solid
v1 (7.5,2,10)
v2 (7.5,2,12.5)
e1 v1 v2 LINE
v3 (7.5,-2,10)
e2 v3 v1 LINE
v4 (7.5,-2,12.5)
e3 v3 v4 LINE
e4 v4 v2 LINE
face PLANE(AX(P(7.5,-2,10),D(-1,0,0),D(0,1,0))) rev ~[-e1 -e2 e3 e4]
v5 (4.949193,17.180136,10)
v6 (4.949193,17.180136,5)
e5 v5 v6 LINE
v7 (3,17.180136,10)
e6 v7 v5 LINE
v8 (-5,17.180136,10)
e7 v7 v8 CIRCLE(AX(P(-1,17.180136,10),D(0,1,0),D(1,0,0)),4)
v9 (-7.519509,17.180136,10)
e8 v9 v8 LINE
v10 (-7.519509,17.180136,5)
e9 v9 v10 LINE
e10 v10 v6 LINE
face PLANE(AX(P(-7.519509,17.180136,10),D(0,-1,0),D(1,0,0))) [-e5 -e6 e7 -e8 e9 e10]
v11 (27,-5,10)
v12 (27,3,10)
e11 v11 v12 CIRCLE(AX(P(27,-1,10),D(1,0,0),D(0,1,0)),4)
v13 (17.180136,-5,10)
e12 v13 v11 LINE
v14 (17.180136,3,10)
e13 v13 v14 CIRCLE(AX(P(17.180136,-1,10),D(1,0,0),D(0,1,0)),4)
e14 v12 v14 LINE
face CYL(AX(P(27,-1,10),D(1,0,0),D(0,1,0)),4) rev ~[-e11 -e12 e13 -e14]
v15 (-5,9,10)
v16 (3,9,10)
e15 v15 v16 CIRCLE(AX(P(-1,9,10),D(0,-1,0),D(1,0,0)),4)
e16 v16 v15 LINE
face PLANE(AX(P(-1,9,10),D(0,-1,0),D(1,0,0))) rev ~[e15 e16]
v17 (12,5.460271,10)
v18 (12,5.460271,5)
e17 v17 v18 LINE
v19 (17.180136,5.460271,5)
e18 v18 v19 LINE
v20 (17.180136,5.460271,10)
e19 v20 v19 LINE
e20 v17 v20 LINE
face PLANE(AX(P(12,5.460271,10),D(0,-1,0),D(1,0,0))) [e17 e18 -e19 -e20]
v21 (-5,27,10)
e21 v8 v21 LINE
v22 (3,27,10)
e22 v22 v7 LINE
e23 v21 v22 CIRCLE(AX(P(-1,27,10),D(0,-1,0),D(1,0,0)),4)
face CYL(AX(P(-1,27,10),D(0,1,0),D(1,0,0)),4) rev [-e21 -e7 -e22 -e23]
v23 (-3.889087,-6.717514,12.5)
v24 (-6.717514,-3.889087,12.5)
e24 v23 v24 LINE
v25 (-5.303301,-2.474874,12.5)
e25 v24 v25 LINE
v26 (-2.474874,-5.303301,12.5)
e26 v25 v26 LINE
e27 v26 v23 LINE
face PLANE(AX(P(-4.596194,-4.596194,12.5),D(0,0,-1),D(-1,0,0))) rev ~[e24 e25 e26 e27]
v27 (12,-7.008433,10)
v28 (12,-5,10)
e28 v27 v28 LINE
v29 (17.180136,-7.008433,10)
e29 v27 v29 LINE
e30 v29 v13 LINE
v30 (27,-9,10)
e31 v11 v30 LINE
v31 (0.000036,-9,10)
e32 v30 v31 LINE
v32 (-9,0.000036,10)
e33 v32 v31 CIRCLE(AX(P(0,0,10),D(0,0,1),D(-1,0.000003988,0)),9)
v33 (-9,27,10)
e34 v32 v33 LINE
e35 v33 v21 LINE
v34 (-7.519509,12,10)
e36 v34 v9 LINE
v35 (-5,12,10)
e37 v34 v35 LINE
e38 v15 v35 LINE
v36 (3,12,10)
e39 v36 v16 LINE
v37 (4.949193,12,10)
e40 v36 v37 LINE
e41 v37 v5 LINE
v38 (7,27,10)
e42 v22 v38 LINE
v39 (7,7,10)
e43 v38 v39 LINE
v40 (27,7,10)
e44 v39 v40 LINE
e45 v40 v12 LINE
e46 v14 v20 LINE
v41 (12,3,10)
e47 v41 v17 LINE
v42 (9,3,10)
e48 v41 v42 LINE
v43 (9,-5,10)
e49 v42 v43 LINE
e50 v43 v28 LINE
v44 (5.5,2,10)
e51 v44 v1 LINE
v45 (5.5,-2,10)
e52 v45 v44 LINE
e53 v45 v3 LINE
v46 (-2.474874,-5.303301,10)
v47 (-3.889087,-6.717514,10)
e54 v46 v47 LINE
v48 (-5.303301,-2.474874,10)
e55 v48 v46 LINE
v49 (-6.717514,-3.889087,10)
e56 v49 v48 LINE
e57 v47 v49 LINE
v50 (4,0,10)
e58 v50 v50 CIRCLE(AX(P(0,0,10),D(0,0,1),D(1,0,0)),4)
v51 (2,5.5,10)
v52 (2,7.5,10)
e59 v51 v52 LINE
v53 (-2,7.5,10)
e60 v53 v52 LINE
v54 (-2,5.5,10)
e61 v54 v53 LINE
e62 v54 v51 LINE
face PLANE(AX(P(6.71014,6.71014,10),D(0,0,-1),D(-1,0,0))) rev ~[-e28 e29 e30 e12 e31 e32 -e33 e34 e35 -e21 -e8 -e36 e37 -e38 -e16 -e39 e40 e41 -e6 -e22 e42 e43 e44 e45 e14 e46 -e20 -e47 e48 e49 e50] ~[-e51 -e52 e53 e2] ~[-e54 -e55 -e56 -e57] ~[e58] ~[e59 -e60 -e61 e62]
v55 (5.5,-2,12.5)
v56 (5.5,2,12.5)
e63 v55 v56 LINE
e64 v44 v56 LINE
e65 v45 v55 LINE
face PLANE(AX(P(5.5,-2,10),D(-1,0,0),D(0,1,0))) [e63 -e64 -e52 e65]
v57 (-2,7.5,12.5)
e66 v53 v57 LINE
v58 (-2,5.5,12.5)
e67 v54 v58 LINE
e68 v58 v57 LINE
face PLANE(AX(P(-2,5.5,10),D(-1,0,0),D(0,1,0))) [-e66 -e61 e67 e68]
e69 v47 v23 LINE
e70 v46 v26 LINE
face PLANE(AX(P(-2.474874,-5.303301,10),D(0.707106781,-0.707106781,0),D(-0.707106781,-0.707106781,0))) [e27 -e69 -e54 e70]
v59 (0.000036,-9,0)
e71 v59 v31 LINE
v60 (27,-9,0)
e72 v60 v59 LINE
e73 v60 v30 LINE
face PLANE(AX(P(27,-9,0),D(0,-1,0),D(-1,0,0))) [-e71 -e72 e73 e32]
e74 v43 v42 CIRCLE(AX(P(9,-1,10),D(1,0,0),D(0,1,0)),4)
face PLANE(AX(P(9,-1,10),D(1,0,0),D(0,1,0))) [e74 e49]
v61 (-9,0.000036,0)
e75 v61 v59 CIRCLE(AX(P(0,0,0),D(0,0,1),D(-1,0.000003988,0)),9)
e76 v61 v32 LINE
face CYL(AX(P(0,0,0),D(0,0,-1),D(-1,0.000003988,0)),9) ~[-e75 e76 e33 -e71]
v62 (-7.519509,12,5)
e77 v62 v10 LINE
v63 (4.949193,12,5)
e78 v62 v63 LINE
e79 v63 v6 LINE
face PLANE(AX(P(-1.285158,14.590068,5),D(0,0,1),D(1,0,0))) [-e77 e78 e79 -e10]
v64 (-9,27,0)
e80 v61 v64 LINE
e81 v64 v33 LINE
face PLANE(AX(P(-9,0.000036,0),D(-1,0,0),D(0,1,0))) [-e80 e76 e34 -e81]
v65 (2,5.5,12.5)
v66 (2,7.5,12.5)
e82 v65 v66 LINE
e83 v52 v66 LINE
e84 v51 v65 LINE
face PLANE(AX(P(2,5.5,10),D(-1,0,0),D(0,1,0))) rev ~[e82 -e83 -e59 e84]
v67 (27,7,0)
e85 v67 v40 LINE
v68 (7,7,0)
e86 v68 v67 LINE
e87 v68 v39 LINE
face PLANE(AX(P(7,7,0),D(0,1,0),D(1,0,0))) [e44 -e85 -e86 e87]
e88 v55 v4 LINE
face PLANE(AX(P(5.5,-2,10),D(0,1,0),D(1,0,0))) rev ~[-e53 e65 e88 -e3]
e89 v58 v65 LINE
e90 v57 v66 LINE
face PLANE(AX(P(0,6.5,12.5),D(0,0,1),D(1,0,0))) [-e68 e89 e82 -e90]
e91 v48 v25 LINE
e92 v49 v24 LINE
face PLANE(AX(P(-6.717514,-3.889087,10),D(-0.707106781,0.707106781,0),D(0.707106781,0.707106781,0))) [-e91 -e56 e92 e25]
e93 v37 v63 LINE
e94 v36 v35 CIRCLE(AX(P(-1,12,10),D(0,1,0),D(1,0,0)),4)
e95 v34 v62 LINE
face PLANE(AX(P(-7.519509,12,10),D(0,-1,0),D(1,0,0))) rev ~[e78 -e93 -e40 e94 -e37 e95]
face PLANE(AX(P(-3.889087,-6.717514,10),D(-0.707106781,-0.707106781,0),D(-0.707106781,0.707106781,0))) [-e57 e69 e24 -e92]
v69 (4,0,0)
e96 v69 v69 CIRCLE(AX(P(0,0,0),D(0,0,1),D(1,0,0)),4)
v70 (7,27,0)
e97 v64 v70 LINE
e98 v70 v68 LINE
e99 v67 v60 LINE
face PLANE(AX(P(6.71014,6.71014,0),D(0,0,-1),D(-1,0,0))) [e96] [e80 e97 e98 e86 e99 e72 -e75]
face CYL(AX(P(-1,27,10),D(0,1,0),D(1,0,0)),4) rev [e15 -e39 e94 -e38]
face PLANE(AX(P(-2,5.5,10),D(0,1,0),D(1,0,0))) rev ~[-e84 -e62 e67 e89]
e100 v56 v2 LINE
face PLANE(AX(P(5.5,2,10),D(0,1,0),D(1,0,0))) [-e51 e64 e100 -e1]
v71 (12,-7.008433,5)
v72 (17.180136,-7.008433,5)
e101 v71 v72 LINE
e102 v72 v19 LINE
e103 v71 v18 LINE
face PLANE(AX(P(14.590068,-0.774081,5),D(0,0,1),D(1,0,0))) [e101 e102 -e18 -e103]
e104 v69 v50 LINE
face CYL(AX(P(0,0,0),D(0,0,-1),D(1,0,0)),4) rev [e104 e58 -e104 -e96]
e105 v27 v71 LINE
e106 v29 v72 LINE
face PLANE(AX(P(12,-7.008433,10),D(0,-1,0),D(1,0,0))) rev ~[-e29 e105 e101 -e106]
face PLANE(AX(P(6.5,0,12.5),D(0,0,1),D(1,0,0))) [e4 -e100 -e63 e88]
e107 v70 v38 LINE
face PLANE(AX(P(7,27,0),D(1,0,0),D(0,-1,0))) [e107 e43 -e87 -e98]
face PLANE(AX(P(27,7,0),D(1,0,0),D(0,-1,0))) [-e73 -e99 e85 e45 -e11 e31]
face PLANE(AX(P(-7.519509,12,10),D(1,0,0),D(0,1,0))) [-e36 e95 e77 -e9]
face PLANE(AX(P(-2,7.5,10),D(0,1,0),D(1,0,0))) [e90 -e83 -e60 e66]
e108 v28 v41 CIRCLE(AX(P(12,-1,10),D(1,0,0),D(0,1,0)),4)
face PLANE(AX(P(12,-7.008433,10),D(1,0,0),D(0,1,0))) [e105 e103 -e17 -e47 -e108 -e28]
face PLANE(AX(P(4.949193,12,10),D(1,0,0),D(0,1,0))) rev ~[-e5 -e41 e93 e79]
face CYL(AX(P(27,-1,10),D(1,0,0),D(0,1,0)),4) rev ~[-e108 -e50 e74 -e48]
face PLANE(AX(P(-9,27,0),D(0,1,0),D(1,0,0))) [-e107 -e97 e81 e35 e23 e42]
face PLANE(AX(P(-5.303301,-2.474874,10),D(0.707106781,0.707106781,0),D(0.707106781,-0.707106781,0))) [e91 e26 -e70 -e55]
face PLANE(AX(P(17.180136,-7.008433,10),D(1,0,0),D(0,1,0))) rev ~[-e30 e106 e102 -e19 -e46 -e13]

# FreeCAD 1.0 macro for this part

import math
import FreeCAD as App
import Part
import Sketcher
from FreeCAD import Vector
Q = App.Units.Quantity


def add_polygon(sketch, points):
    """Adds a closed chain of lines whose ends are joined by coincident constraints."""
    first, n = sketch.GeometryCount, len(points)
    for a, b in zip(points, points[1:] + points[:1]):
        sketch.addGeometry(Part.LineSegment(App.Vector(*a, 0), App.Vector(*b, 0)), False)
    for i in range(n):
        sketch.addConstraint(Sketcher.Constraint("Coincident", first + i, 2, first + (i + 1) % n, 1))

doc = App.newDocument("Part")
params = doc.addObject("Spreadsheet::Sheet", "Params")
for row, (alias, value) in enumerate([
    ("sketch1_diameter", "8 mm"),
    ("pad1_length", "18 mm"),
    ("sketch2_diameter", "8 mm"),
    ("pad2_length", "18 mm"),
    ("pad3_length", "5 mm"),
    ("sketch4_width", "4 mm"),
    ("sketch4_width2", "2 mm"),
    ("sketch4_length", "1.999999 mm"),
    ("sketch4_length2", "4 mm"),
    ("pad4_length", "2.5 mm"),
    ("sketch5_diameter", "8 mm"),
    ("sketch5_radius", "9 mm"),
    ("sketch5_width", "20 mm"),
    ("sketch5_width2", "16 mm"),
    ("pad5_length", "10 mm"),
], start=1):
    params.set(f"A{row}", alias)
    params.set(f"B{row}", "=" + value)
    params.setAlias(f"B{row}", alias)

body = doc.addObject("PartDesign::Body", "Body")

# Sketch on XZ plane
sketch1 = doc.addObject("Sketcher::SketchObject", "Sketch")
body.addObject(sketch1)
sketch1.AttachmentSupport = (doc.XZ_Plane, [""])
sketch1.MapMode = "FlatFace"
sketch1.AttachmentOffset = App.Placement(Vector(0, 0, -27), App.Rotation())
sketch1.addGeometry(Part.Circle(Vector(-1, 10, 0), Vector(0, 0, 1), 4), False)
sketch1.addConstraint([
    Sketcher.Constraint("Diameter", 0, 8.0),
    Sketcher.Constraint("DistanceX", 0, 3, -1, 1, 1.0),
    Sketcher.Constraint("DistanceY", -1, 1, 0, 3, 10.0),
])
sketch1.setExpression("Constraints[0]", "Params.sketch1_diameter")
pad1 = doc.addObject("PartDesign::Pad", "Pad")
body.addObject(pad1)
pad1.Profile = sketch1
pad1.setExpression("Length", "Params.pad1_length")
body2 = doc.addObject("PartDesign::Body", "Body001")

# Sketch on YZ plane
sketch2 = doc.addObject("Sketcher::SketchObject", "Sketch001")
body2.addObject(sketch2)
sketch2.AttachmentSupport = (doc.getObject("YZ_Plane001"), [""])
sketch2.MapMode = "FlatFace"
sketch2.AttachmentOffset = App.Placement(Vector(0, 0, 27), App.Rotation())
sketch2.addGeometry(Part.Circle(Vector(-1, 10, 0), Vector(0, 0, 1), 4), False)
sketch2.addConstraint([
    Sketcher.Constraint("Diameter", 0, 8.0),
    Sketcher.Constraint("DistanceX", 0, 3, -1, 1, 1.0),
    Sketcher.Constraint("DistanceY", -1, 1, 0, 3, 10.0),
])
sketch2.setExpression("Constraints[0]", "Params.sketch2_diameter")
pad2 = doc.addObject("PartDesign::Pad", "Pad001")
body2.addObject(pad2)
pad2.Profile = sketch2
pad2.setExpression("Length", "Params.pad2_length")
pad2.Reversed = True
body3 = doc.addObject("PartDesign::Body", "Body002")
body3.AllowCompound = True

# Sketch on XY plane
sketch3 = doc.addObject("Sketcher::SketchObject", "Sketch002")
body3.addObject(sketch3)
sketch3.AttachmentSupport = (doc.getObject("XY_Plane002"), [""])
sketch3.MapMode = "FlatFace"
sketch3.AttachmentOffset = App.Placement(Vector(0, 0, 10), App.Rotation())
add_polygon(sketch3, [(-8, 17), (-8, 12), (5, 12), (5, 17)])  # lines 0-3
add_polygon(sketch3, [(12, 5), (12, -7), (17, -7), (17, 5)])  # lines 4-7
sketch3.addConstraint([
    Sketcher.Constraint("Vertical", 0),
    Sketcher.Constraint("Horizontal", 1),
    Sketcher.Constraint("Vertical", 2),
    Sketcher.Constraint("Horizontal", 3),
    Sketcher.Constraint("Vertical", 4),
    Sketcher.Constraint("Horizontal", 5),
    Sketcher.Constraint("Vertical", 6),
    Sketcher.Constraint("Horizontal", 7),
    Sketcher.Constraint("Equal", 7, 0),
    Sketcher.Constraint("Equal", 3, 4),
    Sketcher.Constraint("DistanceY", -1, 1, 0, 2, 12.0),
    Sketcher.Constraint("DistanceX", -1, 1, 4, 2, 12.0),
    Sketcher.Constraint("DistanceX", 1, 1, 1, 2, 12.468703),
    Sketcher.Constraint("DistanceX", 5, 1, 5, 2, 5.180136),
    Sketcher.Constraint("DistanceX", 0, 2, -1, 1, 7.519509),
    Sketcher.Constraint("DistanceY", -1, 1, 6, 2, 5.460271),
])
pad3 = doc.addObject("PartDesign::Pad", "Pad002")
body3.addObject(pad3)
pad3.Profile = sketch3
pad3.setExpression("Length", "Params.pad3_length")
pad3.Reversed = True
doc.recompute()

boolean = doc.addObject("PartDesign::Boolean", "Boolean")
body3.addObject(boolean)
boolean.Type = "Fuse"
boolean.addObjects([body])
doc.recompute()

boolean2 = doc.addObject("PartDesign::Boolean", "Boolean001")
body3.addObject(boolean2)
boolean2.Type = "Fuse"
boolean2.addObjects([body2])
body4 = doc.addObject("PartDesign::Body", "Body003")
body4.AllowCompound = True

# Sketch on XY plane
sketch4 = doc.addObject("Sketcher::SketchObject", "Sketch003")
body4.addObject(sketch4)
sketch4.AttachmentSupport = (doc.getObject("XY_Plane003"), [""])
sketch4.MapMode = "FlatFace"
sketch4.AttachmentOffset = App.Placement(Vector(0, 0, 10), App.Rotation())
add_polygon(sketch4, [(-2, 7.5), (-2, 5.5), (2, 5.5), (2, 7.5)])  # lines 0-3
add_polygon(sketch4, [(5.5, 2), (5.5, -2), (7.5, -2), (7.5, 2)])  # lines 4-7
add_polygon(sketch4, [(-5.3, -2.5), (-6.7, -3.9), (-3.9, -6.7), (-2.5, -5.3)])  # lines 8-11
sketch4.addConstraint([
    Sketcher.Constraint("Vertical", 0),
    Sketcher.Constraint("Horizontal", 1),
    Sketcher.Constraint("Vertical", 2),
    Sketcher.Constraint("Horizontal", 3),
    Sketcher.Constraint("Vertical", 4),
    Sketcher.Constraint("Horizontal", 5),
    Sketcher.Constraint("Vertical", 6),
    Sketcher.Constraint("Horizontal", 7),
    Sketcher.Constraint("Perpendicular", 8, 9),
    Sketcher.Constraint("Perpendicular", 9, 10),
    Sketcher.Constraint("Perpendicular", 10, 11),
    Sketcher.Constraint("Equal", 7, 0),
    Sketcher.Constraint("Equal", 3, 4),
    Sketcher.Constraint("DistanceX", 1, 1, 1, 2, 4.0),
    Sketcher.Constraint("DistanceX", 5, 1, 5, 2, 2.0),
    Sketcher.Constraint("Angle", 8, Q("-135 deg")),
    Sketcher.Constraint("Distance", 8, 1.999999),
    Sketcher.Constraint("Distance", 9, 4.0),
    Sketcher.Constraint("DistanceX", 0, 2, -1, 1, 2.0),
    Sketcher.Constraint("DistanceY", 4, 2, -1, 1, 2.0),
    Sketcher.Constraint("DistanceY", -1, 1, 0, 2, 5.5),
    Sketcher.Constraint("DistanceX", -1, 1, 4, 2, 5.5),
    Sketcher.Constraint("DistanceY", 10, 2, -1, 1, 5.303301),
    Sketcher.Constraint("DistanceX", 11, 2, -1, 1, 5.303301),
])
sketch4.setExpression("Constraints[25]", "Params.sketch4_width")
sketch4.setExpression("Constraints[26]", "Params.sketch4_width2")
sketch4.setExpression("Constraints[28]", "Params.sketch4_length")
sketch4.setExpression("Constraints[29]", "Params.sketch4_length2")
pad4 = doc.addObject("PartDesign::Pad", "Pad003")
body4.addObject(pad4)
pad4.Profile = sketch4
pad4.setExpression("Length", "Params.pad4_length")
body5 = doc.addObject("PartDesign::Body", "Body004")

# Sketch on XY plane
sketch5 = doc.addObject("Sketcher::SketchObject", "Sketch004")
body5.addObject(sketch5)
sketch5.AttachmentSupport = (doc.getObject("XY_Plane004"), [""])
sketch5.MapMode = "FlatFace"
sketch5.addGeometry([
    Part.LineSegment(Vector(-9, 27, 0), Vector(-9, 0, 0)),  # 0
    Part.ArcOfCircle(Part.Circle(Vector(0, 0, 0), Vector(0, 0, 1), 9), math.radians(180), math.radians(270)),  # 1
    Part.LineSegment(Vector(0, -9, 0), Vector(27, -9, 0)),  # 2
    Part.LineSegment(Vector(27, -9, 0), Vector(27, 7, 0)),  # 3
    Part.LineSegment(Vector(27, 7, 0), Vector(7, 7, 0)),  # 4
    Part.LineSegment(Vector(7, 7, 0), Vector(7, 27, 0)),  # 5
    Part.LineSegment(Vector(7, 27, 0), Vector(-9, 27, 0)),  # 6
    Part.Circle(Vector(0, 0, 0), Vector(0, 0, 1), 4),  # 7
], False)
sketch5.addConstraint([
    Sketcher.Constraint("Coincident", 0, 2, 1, 1),
    Sketcher.Constraint("Coincident", 1, 2, 2, 1),
    Sketcher.Constraint("Coincident", 2, 2, 3, 1),
    Sketcher.Constraint("Coincident", 3, 2, 4, 1),
    Sketcher.Constraint("Coincident", 4, 2, 5, 1),
    Sketcher.Constraint("Coincident", 5, 2, 6, 1),
    Sketcher.Constraint("Coincident", 6, 2, 0, 1),
    Sketcher.Constraint("Vertical", 0),
    Sketcher.Constraint("Horizontal", 2),
    Sketcher.Constraint("Vertical", 3),
    Sketcher.Constraint("Horizontal", 4),
    Sketcher.Constraint("Vertical", 5),
    Sketcher.Constraint("Horizontal", 6),
    Sketcher.Constraint("Coincident", 1, 3, -1, 1),
    Sketcher.Constraint("Coincident", 7, 3, -1, 1),
    Sketcher.Constraint("Equal", 2, 0),
    Sketcher.Constraint("Equal", 6, 3),
    Sketcher.Constraint("Equal", 4, 5),
    Sketcher.Constraint("Diameter", 7, 8.0),
    Sketcher.Constraint("Radius", 1, 9.0),
    Sketcher.Constraint("DistanceX", 4, 2, 4, 1, 20.0),
    Sketcher.Constraint("DistanceX", 6, 2, 6, 1, 16.0),
    Sketcher.Constraint("DistanceX", 2, 1, 2, 2, 26.999964),
])
sketch5.setExpression("Constraints[18]", "Params.sketch5_diameter")
sketch5.setExpression("Constraints[19]", "Params.sketch5_radius")
sketch5.setExpression("Constraints[20]", "Params.sketch5_width")
sketch5.setExpression("Constraints[21]", "Params.sketch5_width2")
pad5 = doc.addObject("PartDesign::Pad", "Pad004")
body5.addObject(pad5)
pad5.Profile = sketch5
pad5.setExpression("Length", "Params.pad5_length")
doc.recompute()

boolean3 = doc.addObject("PartDesign::Boolean", "Boolean002")
body5.addObject(boolean3)
boolean3.Type = "Fuse"
boolean3.addObjects([body4])
doc.recompute()

boolean4 = doc.addObject("PartDesign::Boolean", "Boolean003")
body5.addObject(boolean4)
boolean4.Type = "Cut"
boolean4.addObjects([body3])

doc.recompute()
